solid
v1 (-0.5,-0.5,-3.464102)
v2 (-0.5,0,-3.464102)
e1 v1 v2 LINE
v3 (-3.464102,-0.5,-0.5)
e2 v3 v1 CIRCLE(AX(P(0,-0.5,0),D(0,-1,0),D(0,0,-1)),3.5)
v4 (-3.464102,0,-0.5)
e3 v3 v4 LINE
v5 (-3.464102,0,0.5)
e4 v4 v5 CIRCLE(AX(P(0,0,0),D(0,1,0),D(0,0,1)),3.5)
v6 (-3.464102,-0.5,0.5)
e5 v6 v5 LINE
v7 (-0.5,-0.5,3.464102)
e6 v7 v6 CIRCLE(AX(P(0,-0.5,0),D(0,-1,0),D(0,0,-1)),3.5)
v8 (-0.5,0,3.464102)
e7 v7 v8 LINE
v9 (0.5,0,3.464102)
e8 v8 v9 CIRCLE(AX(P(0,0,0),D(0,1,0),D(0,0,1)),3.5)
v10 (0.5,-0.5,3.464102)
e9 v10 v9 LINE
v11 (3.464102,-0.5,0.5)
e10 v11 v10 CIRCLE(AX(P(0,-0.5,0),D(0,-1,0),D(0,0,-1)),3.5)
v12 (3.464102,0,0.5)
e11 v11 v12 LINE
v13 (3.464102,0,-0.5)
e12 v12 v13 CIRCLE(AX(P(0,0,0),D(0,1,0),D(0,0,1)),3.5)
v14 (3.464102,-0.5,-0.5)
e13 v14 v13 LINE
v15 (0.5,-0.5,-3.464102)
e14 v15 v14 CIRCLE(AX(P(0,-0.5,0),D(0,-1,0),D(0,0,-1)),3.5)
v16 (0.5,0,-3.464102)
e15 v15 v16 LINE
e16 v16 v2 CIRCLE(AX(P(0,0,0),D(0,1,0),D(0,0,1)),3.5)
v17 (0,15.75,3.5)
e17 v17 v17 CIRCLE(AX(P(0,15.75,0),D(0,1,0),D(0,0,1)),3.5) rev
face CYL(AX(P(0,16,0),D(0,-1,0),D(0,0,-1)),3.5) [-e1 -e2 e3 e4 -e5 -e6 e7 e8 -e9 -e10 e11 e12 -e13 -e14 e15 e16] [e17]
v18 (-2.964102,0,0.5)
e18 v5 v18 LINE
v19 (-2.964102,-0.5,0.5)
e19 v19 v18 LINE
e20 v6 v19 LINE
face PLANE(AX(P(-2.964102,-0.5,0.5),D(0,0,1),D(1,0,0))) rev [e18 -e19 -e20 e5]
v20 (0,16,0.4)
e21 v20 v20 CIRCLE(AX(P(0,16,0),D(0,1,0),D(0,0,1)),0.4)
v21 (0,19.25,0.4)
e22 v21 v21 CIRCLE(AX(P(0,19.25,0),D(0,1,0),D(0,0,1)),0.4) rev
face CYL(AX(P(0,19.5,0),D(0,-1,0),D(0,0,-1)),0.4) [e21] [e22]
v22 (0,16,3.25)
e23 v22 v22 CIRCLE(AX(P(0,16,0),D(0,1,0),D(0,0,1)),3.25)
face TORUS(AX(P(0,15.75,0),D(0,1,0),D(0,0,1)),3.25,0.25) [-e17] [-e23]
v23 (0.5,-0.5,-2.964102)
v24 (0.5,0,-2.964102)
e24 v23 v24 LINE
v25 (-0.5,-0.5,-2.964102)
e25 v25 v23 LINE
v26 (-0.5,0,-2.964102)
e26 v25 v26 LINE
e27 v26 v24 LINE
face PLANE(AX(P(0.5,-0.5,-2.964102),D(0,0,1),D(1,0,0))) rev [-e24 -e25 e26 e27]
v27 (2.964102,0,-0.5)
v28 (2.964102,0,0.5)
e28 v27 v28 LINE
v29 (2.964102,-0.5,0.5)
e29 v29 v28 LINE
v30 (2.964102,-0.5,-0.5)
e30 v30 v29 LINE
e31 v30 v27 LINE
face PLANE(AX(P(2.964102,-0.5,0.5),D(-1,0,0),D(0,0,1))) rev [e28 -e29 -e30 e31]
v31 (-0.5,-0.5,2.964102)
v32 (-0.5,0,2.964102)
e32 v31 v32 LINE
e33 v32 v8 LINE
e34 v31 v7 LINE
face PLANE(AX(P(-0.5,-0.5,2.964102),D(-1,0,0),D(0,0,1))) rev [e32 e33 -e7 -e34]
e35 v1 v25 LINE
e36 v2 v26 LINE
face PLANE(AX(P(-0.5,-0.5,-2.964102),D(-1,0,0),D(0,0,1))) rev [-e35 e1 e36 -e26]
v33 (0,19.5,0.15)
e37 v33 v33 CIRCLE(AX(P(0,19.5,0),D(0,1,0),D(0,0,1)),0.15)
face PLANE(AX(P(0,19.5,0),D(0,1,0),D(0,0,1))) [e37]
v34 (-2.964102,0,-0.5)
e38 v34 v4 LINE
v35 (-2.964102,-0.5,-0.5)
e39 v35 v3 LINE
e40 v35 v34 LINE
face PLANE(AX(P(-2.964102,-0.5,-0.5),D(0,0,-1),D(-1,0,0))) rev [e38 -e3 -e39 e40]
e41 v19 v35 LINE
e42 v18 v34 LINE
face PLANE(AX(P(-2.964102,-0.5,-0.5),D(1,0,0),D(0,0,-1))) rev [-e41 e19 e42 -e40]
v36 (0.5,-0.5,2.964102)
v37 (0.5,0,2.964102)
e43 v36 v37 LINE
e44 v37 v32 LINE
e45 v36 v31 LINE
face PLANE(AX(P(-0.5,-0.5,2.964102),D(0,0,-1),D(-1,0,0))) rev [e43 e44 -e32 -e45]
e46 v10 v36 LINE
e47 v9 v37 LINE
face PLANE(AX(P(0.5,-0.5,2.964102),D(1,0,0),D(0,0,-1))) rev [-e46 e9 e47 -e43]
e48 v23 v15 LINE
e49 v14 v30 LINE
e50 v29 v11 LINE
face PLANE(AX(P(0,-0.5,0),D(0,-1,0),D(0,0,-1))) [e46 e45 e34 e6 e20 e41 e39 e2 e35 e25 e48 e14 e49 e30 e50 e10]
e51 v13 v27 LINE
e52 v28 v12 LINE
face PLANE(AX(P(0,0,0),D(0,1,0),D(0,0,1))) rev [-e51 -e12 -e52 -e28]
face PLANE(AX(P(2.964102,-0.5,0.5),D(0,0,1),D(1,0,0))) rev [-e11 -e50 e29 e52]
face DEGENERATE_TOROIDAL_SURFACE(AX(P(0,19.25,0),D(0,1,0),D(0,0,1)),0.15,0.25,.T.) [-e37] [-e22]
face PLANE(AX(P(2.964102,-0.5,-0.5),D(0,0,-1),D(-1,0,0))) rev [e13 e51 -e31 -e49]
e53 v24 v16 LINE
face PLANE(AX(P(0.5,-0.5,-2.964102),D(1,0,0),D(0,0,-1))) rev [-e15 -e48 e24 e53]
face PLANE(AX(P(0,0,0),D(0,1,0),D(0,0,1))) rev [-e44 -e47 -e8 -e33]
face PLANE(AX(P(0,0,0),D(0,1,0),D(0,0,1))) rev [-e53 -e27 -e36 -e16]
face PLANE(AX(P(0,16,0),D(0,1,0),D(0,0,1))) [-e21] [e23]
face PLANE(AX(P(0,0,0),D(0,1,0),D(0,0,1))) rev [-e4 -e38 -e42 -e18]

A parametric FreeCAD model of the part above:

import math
import FreeCAD as App
import Part
import Sketcher


def edges_at(feature, points):
    """Names of the edges that pass closest to the given points."""
    edges = feature.Shape.Edges
    near = lambda p: min(range(len(edges)), key=lambda i: edges[i].distToShape(Part.Vertex(*p))[0])
    return sorted({f"Edge{near(p) + 1}" for p in points})

doc = App.newDocument("Part")
body = doc.addObject("PartDesign::Body", "Body")

# Sketch on XZ plane
sketch1 = body.newObject("Sketcher::SketchObject", "Sketch")
sketch1.AttachmentSupport = (doc.getObject("XZ_Plane"), [""])
sketch1.MapMode = "FlatFace"
sketch1.addGeometry(Part.Circle(App.Vector(0, 0, 0), App.Vector(0, 0, 1), 3.5), False)
sketch1.addConstraint([
    Sketcher.Constraint("Coincident", 0, 3, -1, 1),
    Sketcher.Constraint("Diameter", 0, 7.0),
])
pad1 = body.newObject("PartDesign::Pad", "Pad")
pad1.Profile = sketch1
pad1.Length = 16
pad1.Reversed = True

# Sketch on XZ plane
sketch2 = body.newObject("Sketcher::SketchObject", "Sketch001")
sketch2.AttachmentSupport = (doc.getObject("XZ_Plane"), [""])
sketch2.MapMode = "FlatFace"
sketch2.AttachmentOffset = App.Placement(App.Vector(0, 0, 0.5), App.Rotation())
sketch2.addGeometry([
    Part.LineSegment(App.Vector(0.5, 2.964102, 0), App.Vector(-0.5, 2.964102, 0)),  # 0
    Part.LineSegment(App.Vector(-0.5, 2.964102, 0), App.Vector(-0.5, 3.464102, 0)),  # 1
    Part.ArcOfCircle(Part.Circle(App.Vector(0, 0, 0), App.Vector(0, 0, 1), 3.5), math.radians(98.213211), math.radians(171.786789)),  # 2
    Part.LineSegment(App.Vector(-3.464102, 0.5, 0), App.Vector(-2.964102, 0.5, 0)),  # 3
    Part.LineSegment(App.Vector(-2.964102, 0.5, 0), App.Vector(-2.964102, -0.5, 0)),  # 4
    Part.LineSegment(App.Vector(-2.964102, -0.5, 0), App.Vector(-3.464102, -0.5, 0)),  # 5
    Part.ArcOfCircle(Part.Circle(App.Vector(0, 0, 0), App.Vector(0, 0, 1), 3.5), math.radians(-171.786789), math.radians(-98.213211)),  # 6
    Part.LineSegment(App.Vector(-0.5, -3.464102, 0), App.Vector(-0.5, -2.964102, 0)),  # 7
    Part.LineSegment(App.Vector(-0.5, -2.964102, 0), App.Vector(0.5, -2.964102, 0)),  # 8
    Part.LineSegment(App.Vector(0.5, -2.964102, 0), App.Vector(0.5, -3.464102, 0)),  # 9
    Part.ArcOfCircle(Part.Circle(App.Vector(0, 0, 0), App.Vector(0, 0, 1), 3.5), math.radians(-81.786789), math.radians(-8.213211)),  # 10
    Part.LineSegment(App.Vector(3.464102, -0.5, 0), App.Vector(2.964102, -0.5, 0)),  # 11
    Part.LineSegment(App.Vector(2.964102, -0.5, 0), App.Vector(2.964102, 0.5, 0)),  # 12
    Part.LineSegment(App.Vector(2.964102, 0.5, 0), App.Vector(3.464102, 0.5, 0)),  # 13
    Part.ArcOfCircle(Part.Circle(App.Vector(0, 0, 0), App.Vector(0, 0, 1), 3.5), math.radians(8.213211), math.radians(81.786789)),  # 14
    Part.LineSegment(App.Vector(0.5, 3.464102, 0), App.Vector(0.5, 2.964102, 0)),  # 15
], False)
sketch2.addConstraint([
    Sketcher.Constraint("Coincident", 0, 2, 1, 1),
    Sketcher.Constraint("Coincident", 1, 2, 2, 1),
    Sketcher.Constraint("Coincident", 2, 2, 3, 1),
    Sketcher.Constraint("Coincident", 3, 2, 4, 1),
    Sketcher.Constraint("Coincident", 4, 2, 5, 1),
    Sketcher.Constraint("Coincident", 5, 2, 6, 1),
    Sketcher.Constraint("Coincident", 6, 2, 7, 1),
    Sketcher.Constraint("Coincident", 7, 2, 8, 1),
    Sketcher.Constraint("Coincident", 8, 2, 9, 1),
    Sketcher.Constraint("Coincident", 9, 2, 10, 1),
    Sketcher.Constraint("Coincident", 10, 2, 11, 1),
    Sketcher.Constraint("Coincident", 11, 2, 12, 1),
    Sketcher.Constraint("Coincident", 12, 2, 13, 1),
    Sketcher.Constraint("Coincident", 13, 2, 14, 1),
    Sketcher.Constraint("Coincident", 14, 2, 15, 1),
    Sketcher.Constraint("Coincident", 15, 2, 0, 1),
    Sketcher.Constraint("Horizontal", 0),
    Sketcher.Constraint("Vertical", 1),
    Sketcher.Constraint("Horizontal", 3),
    Sketcher.Constraint("Vertical", 4),
    Sketcher.Constraint("Horizontal", 5),
    Sketcher.Constraint("Vertical", 7),
    Sketcher.Constraint("Horizontal", 8),
    Sketcher.Constraint("Vertical", 9),
    Sketcher.Constraint("Horizontal", 11),
    Sketcher.Constraint("Vertical", 12),
    Sketcher.Constraint("Horizontal", 13),
    Sketcher.Constraint("Vertical", 15),
    Sketcher.Constraint("Coincident", 2, 3, -1, 1),
    Sketcher.Constraint("Coincident", 6, 3, -1, 1),
    Sketcher.Constraint("Coincident", 10, 3, -1, 1),
    Sketcher.Constraint("Coincident", 14, 3, -1, 1),
    Sketcher.Constraint("Equal", 2, 6),
    Sketcher.Constraint("Equal", 6, 10),
    Sketcher.Constraint("Equal", 10, 14),
    Sketcher.Constraint("Symmetric", 0, 2, 8, 2, -1, 1),
    Sketcher.Constraint("Symmetric", 3, 2, 11, 2, -1, 1),
    Sketcher.Constraint("Horizontal", 6, 2, 9, 2),
    Sketcher.Constraint("Horizontal", 5, 2, 10, 2),
    Sketcher.Constraint("Horizontal", 3, 2, 12, 2),
    Sketcher.Constraint("Horizontal", 1, 2, 14, 2),
    Sketcher.Constraint("Equal", 13, 1),
    Sketcher.Constraint("Equal", 8, 4),
    Sketcher.Constraint("Radius", 2, 3.5),
    Sketcher.Constraint("DistanceX", 0, 2, 0, 1, 1.0),
    Sketcher.Constraint("DistanceX", 3, 1, 3, 2, 0.5),
])
pad2 = body.newObject("PartDesign::Pad", "Pad001")
pad2.Profile = sketch2
pad2.Length = 0.5
pad2.Reversed = True

# Sketch on XZ plane
sketch3 = body.newObject("Sketcher::SketchObject", "Sketch002")
sketch3.AttachmentSupport = (doc.getObject("XZ_Plane"), [""])
sketch3.MapMode = "FlatFace"
sketch3.AttachmentOffset = App.Placement(App.Vector(0, 0, -16), App.Rotation())
sketch3.addGeometry(Part.Circle(App.Vector(0, 0, 0), App.Vector(0, 0, 1), 0.4), False)
sketch3.addConstraint([
    Sketcher.Constraint("Coincident", 0, 3, -1, 1),
    Sketcher.Constraint("Diameter", 0, 0.8),
])
pad3 = body.newObject("PartDesign::Pad", "Pad002")
pad3.Profile = sketch3
pad3.Length = 3.5
pad3.Reversed = True
doc.recompute()

fillet = body.newObject("PartDesign::Fillet", "Fillet")
fillet.Base = (pad3, edges_at(pad3, [(0, 16, -3.5)]))
fillet.Radius = 0.25
doc.recompute()

fillet2 = body.newObject("PartDesign::Fillet", "Fillet001")
fillet2.Base = (fillet, edges_at(fillet, [(0, 19.5, -0.4)]))
fillet2.Radius = 0.25

doc.recompute()
